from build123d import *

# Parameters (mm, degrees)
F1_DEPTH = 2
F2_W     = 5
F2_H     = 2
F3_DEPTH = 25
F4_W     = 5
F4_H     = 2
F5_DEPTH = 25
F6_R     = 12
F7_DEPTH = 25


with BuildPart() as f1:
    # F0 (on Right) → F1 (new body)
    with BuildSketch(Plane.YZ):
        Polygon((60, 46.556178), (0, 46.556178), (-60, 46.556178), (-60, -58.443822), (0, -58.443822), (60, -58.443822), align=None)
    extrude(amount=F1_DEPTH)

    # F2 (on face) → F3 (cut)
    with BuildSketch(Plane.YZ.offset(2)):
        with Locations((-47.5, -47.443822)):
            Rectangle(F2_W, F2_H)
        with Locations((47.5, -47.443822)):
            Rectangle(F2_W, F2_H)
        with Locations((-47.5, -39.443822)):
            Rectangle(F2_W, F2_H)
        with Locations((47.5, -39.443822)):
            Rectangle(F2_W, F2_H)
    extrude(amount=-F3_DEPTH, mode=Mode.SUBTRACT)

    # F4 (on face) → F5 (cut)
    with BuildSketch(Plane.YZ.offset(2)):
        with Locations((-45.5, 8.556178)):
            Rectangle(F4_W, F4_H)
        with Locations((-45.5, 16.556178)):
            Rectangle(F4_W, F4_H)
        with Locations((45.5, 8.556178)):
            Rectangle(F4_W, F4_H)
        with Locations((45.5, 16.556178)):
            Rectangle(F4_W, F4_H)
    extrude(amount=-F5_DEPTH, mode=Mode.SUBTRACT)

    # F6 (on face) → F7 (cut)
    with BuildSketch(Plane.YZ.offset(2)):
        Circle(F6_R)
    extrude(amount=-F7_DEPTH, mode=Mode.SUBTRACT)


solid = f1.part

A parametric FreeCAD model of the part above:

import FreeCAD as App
import Part
import Sketcher
from FreeCAD import Vector
Q = App.Units.Quantity

doc = App.newDocument("Part")
body = doc.addObject("PartDesign::Body", "Body")

# Sketch on YZ plane
sketch1 = body.newObject("Sketcher::SketchObject", "Sketch")
sketch1.AttachmentSupport = (doc.getObject("YZ_Plane"), [""])
sketch1.MapMode = "FlatFace"
sketch1.addGeometry([
    Part.LineSegment(Vector(60, 47, 0), Vector(-60, 47, 0)),
    Part.LineSegment(Vector(-60, 47, 0), Vector(-60, -58, 0)),
    Part.LineSegment(Vector(-60, -58, 0), Vector(60, -58, 0)),
    Part.LineSegment(Vector(60, -58, 0), Vector(60, 47, 0)),
], False)
sketch1.addConstraint([
    Sketcher.Constraint("Coincident", 0, 2, 1, 1),
    Sketcher.Constraint("Coincident", 1, 2, 2, 1),
    Sketcher.Constraint("Coincident", 2, 2, 3, 1),
    Sketcher.Constraint("Coincident", 3, 2, 0, 1),
    Sketcher.Constraint("Horizontal", 0),
    Sketcher.Constraint("Vertical", 1),
    Sketcher.Constraint("Horizontal", 2),
    Sketcher.Constraint("Vertical", 3),
    Sketcher.Constraint("DistanceX", 0, 2, 0, 1, Q("120 mm")),
    Sketcher.Constraint("DistanceY", 1, 2, 1, 1, Q("105 mm")),
    Sketcher.Constraint("DistanceX", 0, 2, -1, 1, Q("60 mm")),
    Sketcher.Constraint("DistanceY", -1, 1, 0, 2, Q("46.556178 mm")),
])
pad1 = body.newObject("PartDesign::Pad", "Pad")
pad1.Profile = sketch1
pad1.Length = 2

# Sketch on YZ plane
sketch2 = body.newObject("Sketcher::SketchObject", "Sketch001")
sketch2.AttachmentSupport = (doc.getObject("YZ_Plane"), [""])
sketch2.MapMode = "FlatFace"
sketch2.AttachmentOffset = App.Placement(Vector(0, 0, 2), App.Rotation())
sketch2.addGeometry([
    Part.LineSegment(Vector(-50, -46.4, 0), Vector(-50, -48.4, 0)),  # 0
    Part.LineSegment(Vector(-50, -48.4, 0), Vector(-45, -48.4, 0)),  # 1
    Part.LineSegment(Vector(-45, -48.4, 0), Vector(-45, -46.4, 0)),  # 2
    Part.LineSegment(Vector(-45, -46.4, 0), Vector(-50, -46.4, 0)),  # 3
    Part.LineSegment(Vector(45, -46.4, 0), Vector(45, -48.4, 0)),  # 4
    Part.LineSegment(Vector(45, -48.4, 0), Vector(50, -48.4, 0)),  # 5
    Part.LineSegment(Vector(50, -48.4, 0), Vector(50, -46.4, 0)),  # 6
    Part.LineSegment(Vector(50, -46.4, 0), Vector(45, -46.4, 0)),  # 7
    Part.LineSegment(Vector(-50, -38.4, 0), Vector(-50, -40.4, 0)),  # 8
    Part.LineSegment(Vector(-50, -40.4, 0), Vector(-45, -40.4, 0)),  # 9
    Part.LineSegment(Vector(-45, -40.4, 0), Vector(-45, -38.4, 0)),  # 10
    Part.LineSegment(Vector(-45, -38.4, 0), Vector(-50, -38.4, 0)),  # 11
    Part.LineSegment(Vector(45, -38.4, 0), Vector(45, -40.4, 0)),  # 12
    Part.LineSegment(Vector(45, -40.4, 0), Vector(50, -40.4, 0)),  # 13
    Part.LineSegment(Vector(50, -40.4, 0), Vector(50, -38.4, 0)),  # 14
    Part.LineSegment(Vector(50, -38.4, 0), Vector(45, -38.4, 0)),  # 15
], False)
sketch2.addConstraint([
    Sketcher.Constraint("Coincident", 0, 2, 1, 1),
    Sketcher.Constraint("Coincident", 1, 2, 2, 1),
    Sketcher.Constraint("Coincident", 2, 2, 3, 1),
    Sketcher.Constraint("Coincident", 3, 2, 0, 1),
    Sketcher.Constraint("Coincident", 4, 2, 5, 1),
    Sketcher.Constraint("Coincident", 5, 2, 6, 1),
    Sketcher.Constraint("Coincident", 6, 2, 7, 1),
    Sketcher.Constraint("Coincident", 7, 2, 4, 1),
    Sketcher.Constraint("Coincident", 8, 2, 9, 1),
    Sketcher.Constraint("Coincident", 9, 2, 10, 1),
    Sketcher.Constraint("Coincident", 10, 2, 11, 1),
    Sketcher.Constraint("Coincident", 11, 2, 8, 1),
    Sketcher.Constraint("Coincident", 12, 2, 13, 1),
    Sketcher.Constraint("Coincident", 13, 2, 14, 1),
    Sketcher.Constraint("Coincident", 14, 2, 15, 1),
    Sketcher.Constraint("Coincident", 15, 2, 12, 1),
    Sketcher.Constraint("Vertical", 0),
    Sketcher.Constraint("Horizontal", 1),
    Sketcher.Constraint("Vertical", 2),
    Sketcher.Constraint("Horizontal", 3),
    Sketcher.Constraint("Vertical", 4),
    Sketcher.Constraint("Horizontal", 5),
    Sketcher.Constraint("Vertical", 6),
    Sketcher.Constraint("Horizontal", 7),
    Sketcher.Constraint("Vertical", 8),
    Sketcher.Constraint("Horizontal", 9),
    Sketcher.Constraint("Vertical", 10),
    Sketcher.Constraint("Horizontal", 11),
    Sketcher.Constraint("Vertical", 12),
    Sketcher.Constraint("Horizontal", 13),
    Sketcher.Constraint("Vertical", 14),
    Sketcher.Constraint("Horizontal", 15),
    Sketcher.Constraint("Symmetric", 1, 2, 4, 2, -2),
    Sketcher.Constraint("Symmetric", 3, 2, 6, 2, -2),
    Sketcher.Constraint("Symmetric", 9, 2, 12, 2, -2),
    Sketcher.Constraint("Symmetric", 11, 2, 14, 2, -2),
    Sketcher.Constraint("Vertical", 3, 2, 8, 2),
    Sketcher.Constraint("Vertical", 2, 2, 9, 2),
    Sketcher.Constraint("Equal", 6, 8),
    Sketcher.Constraint("DistanceX", 1, 1, 1, 2, Q("5 mm")),
    Sketcher.Constraint("DistanceY", 0, 2, 0, 1, Q("2 mm")),
    Sketcher.Constraint("DistanceX", 0, 2, -1, 1, Q("50 mm")),
    Sketcher.Constraint("DistanceY", 3, 2, 8, 2, Q("6 mm")),
    Sketcher.Constraint("DistanceY", 0, 2, -1, 1, Q("48.443822 mm")),
])
pocket1 = body.newObject("PartDesign::Pocket", "Pocket")
pocket1.Profile = sketch2
pocket1.Length = 25

# Sketch on YZ plane
sketch3 = body.newObject("Sketcher::SketchObject", "Sketch002")
sketch3.AttachmentSupport = (doc.getObject("YZ_Plane"), [""])
sketch3.MapMode = "FlatFace"
sketch3.AttachmentOffset = App.Placement(Vector(0, 0, 2), App.Rotation())
sketch3.addGeometry([
    Part.LineSegment(Vector(-48, 9.6, 0), Vector(-48, 7.6, 0)),  # 0
    Part.LineSegment(Vector(-48, 7.6, 0), Vector(-43, 7.6, 0)),  # 1
    Part.LineSegment(Vector(-43, 7.6, 0), Vector(-43, 9.6, 0)),  # 2
    Part.LineSegment(Vector(-43, 9.6, 0), Vector(-48, 9.6, 0)),  # 3
    Part.LineSegment(Vector(-48, 17.6, 0), Vector(-48, 15.6, 0)),  # 4
    Part.LineSegment(Vector(-48, 15.6, 0), Vector(-43, 15.6, 0)),  # 5
    Part.LineSegment(Vector(-43, 15.6, 0), Vector(-43, 17.6, 0)),  # 6
    Part.LineSegment(Vector(-43, 17.6, 0), Vector(-48, 17.6, 0)),  # 7
    Part.LineSegment(Vector(43, 9.6, 0), Vector(43, 7.6, 0)),  # 8
    Part.LineSegment(Vector(43, 7.6, 0), Vector(48, 7.6, 0)),  # 9
    Part.LineSegment(Vector(48, 7.6, 0), Vector(48, 9.6, 0)),  # 10
    Part.LineSegment(Vector(48, 9.6, 0), Vector(43, 9.6, 0)),  # 11
    Part.LineSegment(Vector(43, 17.6, 0), Vector(43, 15.6, 0)),  # 12
    Part.LineSegment(Vector(43, 15.6, 0), Vector(48, 15.6, 0)),  # 13
    Part.LineSegment(Vector(48, 15.6, 0), Vector(48, 17.6, 0)),  # 14
    Part.LineSegment(Vector(48, 17.6, 0), Vector(43, 17.6, 0)),  # 15
], False)
sketch3.addConstraint([
    Sketcher.Constraint("Coincident", 0, 2, 1, 1),
    Sketcher.Constraint("Coincident", 1, 2, 2, 1),
    Sketcher.Constraint("Coincident", 2, 2, 3, 1),
    Sketcher.Constraint("Coincident", 3, 2, 0, 1),
    Sketcher.Constraint("Coincident", 4, 2, 5, 1),
    Sketcher.Constraint("Coincident", 5, 2, 6, 1),
    Sketcher.Constraint("Coincident", 6, 2, 7, 1),
    Sketcher.Constraint("Coincident", 7, 2, 4, 1),
    Sketcher.Constraint("Coincident", 8, 2, 9, 1),
    Sketcher.Constraint("Coincident", 9, 2, 10, 1),
    Sketcher.Constraint("Coincident", 10, 2, 11, 1),
    Sketcher.Constraint("Coincident", 11, 2, 8, 1),
    Sketcher.Constraint("Coincident", 12, 2, 13, 1),
    Sketcher.Constraint("Coincident", 13, 2, 14, 1),
    Sketcher.Constraint("Coincident", 14, 2, 15, 1),
    Sketcher.Constraint("Coincident", 15, 2, 12, 1),
    Sketcher.Constraint("Vertical", 0),
    Sketcher.Constraint("Horizontal", 1),
    Sketcher.Constraint("Vertical", 2),
    Sketcher.Constraint("Horizontal", 3),
    Sketcher.Constraint("Vertical", 4),
    Sketcher.Constraint("Horizontal", 5),
    Sketcher.Constraint("Vertical", 6),
    Sketcher.Constraint("Horizontal", 7),
    Sketcher.Constraint("Vertical", 8),
    Sketcher.Constraint("Horizontal", 9),
    Sketcher.Constraint("Vertical", 10),
    Sketcher.Constraint("Horizontal", 11),
    Sketcher.Constraint("Vertical", 12),
    Sketcher.Constraint("Horizontal", 13),
    Sketcher.Constraint("Vertical", 14),
    Sketcher.Constraint("Horizontal", 15),
    Sketcher.Constraint("Symmetric", 1, 2, 8, 2, -2),
    Sketcher.Constraint("Symmetric", 3, 2, 10, 2, -2),
    Sketcher.Constraint("Symmetric", 5, 2, 12, 2, -2),
    Sketcher.Constraint("Symmetric", 7, 2, 14, 2, -2),
    Sketcher.Constraint("Vertical", 3, 2, 4, 2),
    Sketcher.Constraint("Vertical", 2, 2, 5, 2),
    Sketcher.Constraint("Equal", 2, 4),
    Sketcher.Constraint("DistanceX", 1, 1, 1, 2, Q("5 mm")),
    Sketcher.Constraint("DistanceY", 0, 2, 0, 1, Q("2 mm")),
    Sketcher.Constraint("DistanceX", 0, 2, -1, 1, Q("48 mm")),
    Sketcher.Constraint("DistanceY", 3, 2, 4, 2, Q("6 mm")),
    Sketcher.Constraint("DistanceY", -1, 1, 0, 2, Q("7.556178 mm")),
])
pocket2 = body.newObject("PartDesign::Pocket", "Pocket001")
pocket2.Profile = sketch3
pocket2.Length = 25

# Sketch on YZ plane
sketch4 = body.newObject("Sketcher::SketchObject", "Sketch003")
sketch4.AttachmentSupport = (doc.getObject("YZ_Plane"), [""])
sketch4.MapMode = "FlatFace"
sketch4.AttachmentOffset = App.Placement(Vector(0, 0, 2), App.Rotation())
sketch4.addGeometry(Part.Circle(Vector(0, 0, 0), Vector(0, 0, 1), 12), False)
sketch4.addConstraint([
    Sketcher.Constraint("Coincident", 0, 3, -1, 1),
    Sketcher.Constraint("Diameter", 0, Q("24 mm")),
])
pocket3 = body.newObject("PartDesign::Pocket", "Pocket002")
pocket3.Profile = sketch4
pocket3.Length = 25

doc.recompute()
